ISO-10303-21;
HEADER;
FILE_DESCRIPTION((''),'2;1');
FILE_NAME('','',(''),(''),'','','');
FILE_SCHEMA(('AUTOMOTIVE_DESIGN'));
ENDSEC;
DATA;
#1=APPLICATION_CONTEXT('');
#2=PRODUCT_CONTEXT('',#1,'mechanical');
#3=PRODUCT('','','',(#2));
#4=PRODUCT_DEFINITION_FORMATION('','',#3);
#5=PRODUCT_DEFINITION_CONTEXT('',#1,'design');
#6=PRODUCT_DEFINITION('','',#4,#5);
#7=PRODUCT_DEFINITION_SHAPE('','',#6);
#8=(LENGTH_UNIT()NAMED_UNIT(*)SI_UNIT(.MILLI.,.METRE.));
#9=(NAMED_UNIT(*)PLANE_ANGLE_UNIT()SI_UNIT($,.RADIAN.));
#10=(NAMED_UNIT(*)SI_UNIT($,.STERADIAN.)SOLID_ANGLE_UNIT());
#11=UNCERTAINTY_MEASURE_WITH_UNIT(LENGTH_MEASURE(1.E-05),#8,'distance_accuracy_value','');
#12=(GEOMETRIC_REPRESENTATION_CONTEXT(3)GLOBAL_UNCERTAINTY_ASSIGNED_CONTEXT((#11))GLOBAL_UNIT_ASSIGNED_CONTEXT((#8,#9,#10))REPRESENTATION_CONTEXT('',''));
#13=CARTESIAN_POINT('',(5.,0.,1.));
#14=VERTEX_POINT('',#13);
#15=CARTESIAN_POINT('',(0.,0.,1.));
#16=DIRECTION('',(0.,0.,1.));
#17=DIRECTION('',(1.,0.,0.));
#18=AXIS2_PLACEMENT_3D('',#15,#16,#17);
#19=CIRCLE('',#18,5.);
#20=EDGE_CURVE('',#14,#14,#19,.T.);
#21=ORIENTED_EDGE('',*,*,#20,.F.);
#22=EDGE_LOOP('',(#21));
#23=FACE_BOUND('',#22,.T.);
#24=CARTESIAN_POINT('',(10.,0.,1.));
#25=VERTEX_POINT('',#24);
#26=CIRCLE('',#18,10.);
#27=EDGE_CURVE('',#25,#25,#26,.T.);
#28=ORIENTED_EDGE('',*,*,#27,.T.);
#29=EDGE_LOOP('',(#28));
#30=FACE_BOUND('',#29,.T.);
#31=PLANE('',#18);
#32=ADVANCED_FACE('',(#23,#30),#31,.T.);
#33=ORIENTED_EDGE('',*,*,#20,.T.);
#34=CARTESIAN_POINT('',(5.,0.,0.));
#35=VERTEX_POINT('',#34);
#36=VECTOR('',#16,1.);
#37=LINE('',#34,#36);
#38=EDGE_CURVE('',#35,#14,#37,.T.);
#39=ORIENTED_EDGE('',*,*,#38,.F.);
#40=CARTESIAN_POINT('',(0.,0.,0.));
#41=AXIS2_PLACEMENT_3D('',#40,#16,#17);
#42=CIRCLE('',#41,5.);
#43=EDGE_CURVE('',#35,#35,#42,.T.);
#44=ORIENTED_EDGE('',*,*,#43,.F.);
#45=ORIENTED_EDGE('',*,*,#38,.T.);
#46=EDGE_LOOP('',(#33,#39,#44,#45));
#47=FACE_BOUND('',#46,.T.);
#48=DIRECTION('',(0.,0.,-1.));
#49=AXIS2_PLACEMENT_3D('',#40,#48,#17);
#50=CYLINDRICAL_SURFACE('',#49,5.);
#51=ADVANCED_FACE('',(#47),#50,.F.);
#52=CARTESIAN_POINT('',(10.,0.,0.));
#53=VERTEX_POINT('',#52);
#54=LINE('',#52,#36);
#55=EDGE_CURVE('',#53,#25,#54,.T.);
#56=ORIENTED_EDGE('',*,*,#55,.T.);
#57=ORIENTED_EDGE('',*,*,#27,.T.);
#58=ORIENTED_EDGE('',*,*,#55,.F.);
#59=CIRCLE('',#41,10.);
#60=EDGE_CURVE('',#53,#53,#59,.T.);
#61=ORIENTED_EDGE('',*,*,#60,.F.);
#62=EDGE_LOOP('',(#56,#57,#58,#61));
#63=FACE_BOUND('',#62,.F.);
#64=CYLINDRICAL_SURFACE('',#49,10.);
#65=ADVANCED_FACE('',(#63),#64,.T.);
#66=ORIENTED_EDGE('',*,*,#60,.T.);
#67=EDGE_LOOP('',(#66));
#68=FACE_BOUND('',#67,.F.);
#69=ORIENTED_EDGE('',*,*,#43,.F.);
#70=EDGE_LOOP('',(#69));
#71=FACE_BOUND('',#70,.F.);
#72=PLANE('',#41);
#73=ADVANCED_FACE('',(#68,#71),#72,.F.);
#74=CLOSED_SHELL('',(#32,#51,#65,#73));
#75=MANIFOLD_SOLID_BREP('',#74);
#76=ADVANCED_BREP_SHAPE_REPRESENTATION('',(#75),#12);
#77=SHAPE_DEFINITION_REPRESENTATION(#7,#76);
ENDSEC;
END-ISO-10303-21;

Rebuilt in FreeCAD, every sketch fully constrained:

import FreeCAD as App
import Part
import Sketcher
from FreeCAD import Vector

doc = App.newDocument("Part")
body = doc.addObject("PartDesign::Body", "Body")

# Sketch on XY plane
sketch1 = body.newObject("Sketcher::SketchObject", "Sketch")
sketch1.AttachmentSupport = (doc.getObject("XY_Plane"), [""])
sketch1.MapMode = "FlatFace"
sketch1.addGeometry([
    Part.Circle(Vector(0, 0, 0), Vector(0, 0, 1), 10),
    Part.Circle(Vector(0, 0, 0), Vector(0, 0, 1), 5),
], False)
sketch1.addConstraint([
    Sketcher.Constraint("Coincident", 0, 3, -1, 1),
    Sketcher.Constraint("Coincident", 1, 3, -1, 1),
    Sketcher.Constraint("Diameter", 0, 20.0),
    Sketcher.Constraint("Diameter", 1, 10.0),
])
pad1 = body.newObject("PartDesign::Pad", "Pad")
pad1.Profile = sketch1
pad1.Length = 1

doc.recompute()
